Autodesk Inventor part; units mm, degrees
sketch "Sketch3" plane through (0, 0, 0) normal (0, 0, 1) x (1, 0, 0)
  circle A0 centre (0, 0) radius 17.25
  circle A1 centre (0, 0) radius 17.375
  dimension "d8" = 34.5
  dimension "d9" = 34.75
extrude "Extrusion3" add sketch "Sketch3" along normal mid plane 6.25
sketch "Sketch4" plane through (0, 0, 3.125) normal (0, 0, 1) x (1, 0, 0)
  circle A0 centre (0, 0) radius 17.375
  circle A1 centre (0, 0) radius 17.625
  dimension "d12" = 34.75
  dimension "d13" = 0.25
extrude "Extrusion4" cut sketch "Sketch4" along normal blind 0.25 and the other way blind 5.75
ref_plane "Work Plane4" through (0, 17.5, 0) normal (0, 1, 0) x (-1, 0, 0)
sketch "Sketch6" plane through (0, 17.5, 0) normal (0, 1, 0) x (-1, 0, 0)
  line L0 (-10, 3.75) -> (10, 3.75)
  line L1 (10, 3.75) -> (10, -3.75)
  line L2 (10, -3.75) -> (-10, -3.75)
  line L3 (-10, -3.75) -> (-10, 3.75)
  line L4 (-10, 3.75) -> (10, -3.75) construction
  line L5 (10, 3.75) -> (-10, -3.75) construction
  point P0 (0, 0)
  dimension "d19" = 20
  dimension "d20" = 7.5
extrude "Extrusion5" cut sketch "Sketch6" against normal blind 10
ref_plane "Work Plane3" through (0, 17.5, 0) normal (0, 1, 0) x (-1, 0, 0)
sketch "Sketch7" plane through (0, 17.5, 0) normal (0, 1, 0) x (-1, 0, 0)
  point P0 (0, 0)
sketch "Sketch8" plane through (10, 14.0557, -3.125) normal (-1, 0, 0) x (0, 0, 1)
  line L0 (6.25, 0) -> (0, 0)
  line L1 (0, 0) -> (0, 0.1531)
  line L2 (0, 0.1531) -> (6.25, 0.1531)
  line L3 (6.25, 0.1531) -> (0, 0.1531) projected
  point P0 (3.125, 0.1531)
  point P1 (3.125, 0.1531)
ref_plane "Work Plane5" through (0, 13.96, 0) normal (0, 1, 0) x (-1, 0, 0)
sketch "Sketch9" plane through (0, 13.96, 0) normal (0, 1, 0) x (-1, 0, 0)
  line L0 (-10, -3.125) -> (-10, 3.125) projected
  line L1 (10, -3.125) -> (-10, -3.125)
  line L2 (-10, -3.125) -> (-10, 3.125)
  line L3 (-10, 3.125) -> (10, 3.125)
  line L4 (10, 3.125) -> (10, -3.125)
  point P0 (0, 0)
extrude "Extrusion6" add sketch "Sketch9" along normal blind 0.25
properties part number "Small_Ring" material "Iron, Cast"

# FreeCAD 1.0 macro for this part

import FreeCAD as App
import Part
import Sketcher
Q = App.Units.Quantity

doc = App.newDocument("Part")
body = doc.addObject("PartDesign::Body", "Body")

# Sketch on XY plane
sketch1 = body.newObject("Sketcher::SketchObject", "Sketch")
sketch1.AttachmentSupport = (doc.getObject("XY_Plane"), [""])
sketch1.MapMode = "FlatFace"
sketch1.addGeometry([
    Part.Circle(App.Vector(0, 0, 0), App.Vector(0, 0, 1), 17.375),
    Part.Circle(App.Vector(0, 0, 0), App.Vector(0, 0, 1), 17.25),
], False)
sketch1.addConstraint([
    Sketcher.Constraint("Coincident", 0, 3, -1, 1),
    Sketcher.Constraint("Coincident", 1, 3, -1, 1),
    Sketcher.Constraint("Diameter", 1, Q("34.5 mm")),
    Sketcher.Constraint("Diameter", 0, Q("34.75 mm")),
])
pad1 = body.newObject("PartDesign::Pad", "Pad")
pad1.Profile = sketch1
pad1.Length = 6.25
pad1.Midplane = True

# Sketch on XY plane
sketch2 = body.newObject("Sketcher::SketchObject", "Sketch001")
sketch2.AttachmentSupport = (doc.getObject("XY_Plane"), [""])
sketch2.MapMode = "FlatFace"
sketch2.AttachmentOffset = App.Placement(App.Vector(0, 0, 3.125), App.Rotation())
sketch2.addGeometry([
    Part.Circle(App.Vector(0, 0, 0), App.Vector(0, 0, 1), 17.625),
    Part.Circle(App.Vector(0, 0, 0), App.Vector(0, 0, 1), 17.375),
], False)
sketch2.addConstraint([
    Sketcher.Constraint("Coincident", 0, 3, -1, 1),
    Sketcher.Constraint("Coincident", 1, 3, -1, 1),
    Sketcher.Constraint("Diameter", 1, Q("34.75 mm")),
    Sketcher.Constraint("Diameter", 0, Q("35.25 mm")),
])
pocket1 = body.newObject("PartDesign::Pocket", "Pocket")
pocket1.Profile = sketch2
pocket1.Type = "ThroughAll"
pocket1.Midplane = True

# Sketch on XZ plane
sketch3 = body.newObject("Sketcher::SketchObject", "Sketch002")
sketch3.AttachmentSupport = (doc.getObject("XZ_Plane"), [""])
sketch3.MapMode = "FlatFace"
sketch3.AttachmentOffset = App.Placement(App.Vector(0, 0, -17.5), App.Rotation())
sketch3.addGeometry([
    Part.LineSegment(App.Vector(-10, 3.75, 0), App.Vector(10, 3.75, 0)),
    Part.LineSegment(App.Vector(10, 3.75, 0), App.Vector(10, -3.75, 0)),
    Part.LineSegment(App.Vector(10, -3.75, 0), App.Vector(-10, -3.75, 0)),
    Part.LineSegment(App.Vector(-10, -3.75, 0), App.Vector(-10, 3.75, 0)),
], False)
sketch3.addConstraint([
    Sketcher.Constraint("Coincident", 0, 2, 1, 1),
    Sketcher.Constraint("Coincident", 1, 2, 2, 1),
    Sketcher.Constraint("Coincident", 2, 2, 3, 1),
    Sketcher.Constraint("Coincident", 3, 2, 0, 1),
    Sketcher.Constraint("Horizontal", 0),
    Sketcher.Constraint("Vertical", 1),
    Sketcher.Constraint("Horizontal", 2),
    Sketcher.Constraint("Vertical", 3),
    Sketcher.Constraint("Symmetric", 0, 2, 2, 2, -1, 1),
    Sketcher.Constraint("DistanceX", 0, 1, 0, 2, Q("20 mm")),
    Sketcher.Constraint("DistanceY", 1, 2, 1, 1, Q("7.5 mm")),
])
pocket2 = body.newObject("PartDesign::Pocket", "Pocket001")
pocket2.Profile = sketch3
pocket2.Length = 10
pocket2.Reversed = True

# Sketch on XZ plane
sketch4 = body.newObject("Sketcher::SketchObject", "Sketch003")
sketch4.AttachmentSupport = (doc.getObject("XZ_Plane"), [""])
sketch4.MapMode = "FlatFace"
sketch4.AttachmentOffset = App.Placement(App.Vector(0, 0, -13.96), App.Rotation())
sketch4.addGeometry([
    Part.LineSegment(App.Vector(10, 3.125, 0), App.Vector(10, -3.125, 0)),
    Part.LineSegment(App.Vector(10, -3.125, 0), App.Vector(-10, -3.125, 0)),
    Part.LineSegment(App.Vector(-10, -3.125, 0), App.Vector(-10, 3.125, 0)),
    Part.LineSegment(App.Vector(-10, 3.125, 0), App.Vector(10, 3.125, 0)),
], False)
sketch4.addConstraint([
    Sketcher.Constraint("Coincident", 0, 2, 1, 1),
    Sketcher.Constraint("Coincident", 1, 2, 2, 1),
    Sketcher.Constraint("Coincident", 2, 2, 3, 1),
    Sketcher.Constraint("Coincident", 3, 2, 0, 1),
    Sketcher.Constraint("Vertical", 0),
    Sketcher.Constraint("Horizontal", 1),
    Sketcher.Constraint("Vertical", 2),
    Sketcher.Constraint("Horizontal", 3),
    Sketcher.Constraint("Symmetric", 0, 2, 2, 2, -1, 1),
    Sketcher.Constraint("DistanceX", 1, 2, 1, 1, Q("20 mm")),
    Sketcher.Constraint("DistanceY", 0, 2, 0, 1, Q("6.25 mm")),
])
pad2 = body.newObject("PartDesign::Pad", "Pad001")
pad2.Profile = sketch4
pad2.Length = 0.25
pad2.Reversed = True

doc.recompute()
